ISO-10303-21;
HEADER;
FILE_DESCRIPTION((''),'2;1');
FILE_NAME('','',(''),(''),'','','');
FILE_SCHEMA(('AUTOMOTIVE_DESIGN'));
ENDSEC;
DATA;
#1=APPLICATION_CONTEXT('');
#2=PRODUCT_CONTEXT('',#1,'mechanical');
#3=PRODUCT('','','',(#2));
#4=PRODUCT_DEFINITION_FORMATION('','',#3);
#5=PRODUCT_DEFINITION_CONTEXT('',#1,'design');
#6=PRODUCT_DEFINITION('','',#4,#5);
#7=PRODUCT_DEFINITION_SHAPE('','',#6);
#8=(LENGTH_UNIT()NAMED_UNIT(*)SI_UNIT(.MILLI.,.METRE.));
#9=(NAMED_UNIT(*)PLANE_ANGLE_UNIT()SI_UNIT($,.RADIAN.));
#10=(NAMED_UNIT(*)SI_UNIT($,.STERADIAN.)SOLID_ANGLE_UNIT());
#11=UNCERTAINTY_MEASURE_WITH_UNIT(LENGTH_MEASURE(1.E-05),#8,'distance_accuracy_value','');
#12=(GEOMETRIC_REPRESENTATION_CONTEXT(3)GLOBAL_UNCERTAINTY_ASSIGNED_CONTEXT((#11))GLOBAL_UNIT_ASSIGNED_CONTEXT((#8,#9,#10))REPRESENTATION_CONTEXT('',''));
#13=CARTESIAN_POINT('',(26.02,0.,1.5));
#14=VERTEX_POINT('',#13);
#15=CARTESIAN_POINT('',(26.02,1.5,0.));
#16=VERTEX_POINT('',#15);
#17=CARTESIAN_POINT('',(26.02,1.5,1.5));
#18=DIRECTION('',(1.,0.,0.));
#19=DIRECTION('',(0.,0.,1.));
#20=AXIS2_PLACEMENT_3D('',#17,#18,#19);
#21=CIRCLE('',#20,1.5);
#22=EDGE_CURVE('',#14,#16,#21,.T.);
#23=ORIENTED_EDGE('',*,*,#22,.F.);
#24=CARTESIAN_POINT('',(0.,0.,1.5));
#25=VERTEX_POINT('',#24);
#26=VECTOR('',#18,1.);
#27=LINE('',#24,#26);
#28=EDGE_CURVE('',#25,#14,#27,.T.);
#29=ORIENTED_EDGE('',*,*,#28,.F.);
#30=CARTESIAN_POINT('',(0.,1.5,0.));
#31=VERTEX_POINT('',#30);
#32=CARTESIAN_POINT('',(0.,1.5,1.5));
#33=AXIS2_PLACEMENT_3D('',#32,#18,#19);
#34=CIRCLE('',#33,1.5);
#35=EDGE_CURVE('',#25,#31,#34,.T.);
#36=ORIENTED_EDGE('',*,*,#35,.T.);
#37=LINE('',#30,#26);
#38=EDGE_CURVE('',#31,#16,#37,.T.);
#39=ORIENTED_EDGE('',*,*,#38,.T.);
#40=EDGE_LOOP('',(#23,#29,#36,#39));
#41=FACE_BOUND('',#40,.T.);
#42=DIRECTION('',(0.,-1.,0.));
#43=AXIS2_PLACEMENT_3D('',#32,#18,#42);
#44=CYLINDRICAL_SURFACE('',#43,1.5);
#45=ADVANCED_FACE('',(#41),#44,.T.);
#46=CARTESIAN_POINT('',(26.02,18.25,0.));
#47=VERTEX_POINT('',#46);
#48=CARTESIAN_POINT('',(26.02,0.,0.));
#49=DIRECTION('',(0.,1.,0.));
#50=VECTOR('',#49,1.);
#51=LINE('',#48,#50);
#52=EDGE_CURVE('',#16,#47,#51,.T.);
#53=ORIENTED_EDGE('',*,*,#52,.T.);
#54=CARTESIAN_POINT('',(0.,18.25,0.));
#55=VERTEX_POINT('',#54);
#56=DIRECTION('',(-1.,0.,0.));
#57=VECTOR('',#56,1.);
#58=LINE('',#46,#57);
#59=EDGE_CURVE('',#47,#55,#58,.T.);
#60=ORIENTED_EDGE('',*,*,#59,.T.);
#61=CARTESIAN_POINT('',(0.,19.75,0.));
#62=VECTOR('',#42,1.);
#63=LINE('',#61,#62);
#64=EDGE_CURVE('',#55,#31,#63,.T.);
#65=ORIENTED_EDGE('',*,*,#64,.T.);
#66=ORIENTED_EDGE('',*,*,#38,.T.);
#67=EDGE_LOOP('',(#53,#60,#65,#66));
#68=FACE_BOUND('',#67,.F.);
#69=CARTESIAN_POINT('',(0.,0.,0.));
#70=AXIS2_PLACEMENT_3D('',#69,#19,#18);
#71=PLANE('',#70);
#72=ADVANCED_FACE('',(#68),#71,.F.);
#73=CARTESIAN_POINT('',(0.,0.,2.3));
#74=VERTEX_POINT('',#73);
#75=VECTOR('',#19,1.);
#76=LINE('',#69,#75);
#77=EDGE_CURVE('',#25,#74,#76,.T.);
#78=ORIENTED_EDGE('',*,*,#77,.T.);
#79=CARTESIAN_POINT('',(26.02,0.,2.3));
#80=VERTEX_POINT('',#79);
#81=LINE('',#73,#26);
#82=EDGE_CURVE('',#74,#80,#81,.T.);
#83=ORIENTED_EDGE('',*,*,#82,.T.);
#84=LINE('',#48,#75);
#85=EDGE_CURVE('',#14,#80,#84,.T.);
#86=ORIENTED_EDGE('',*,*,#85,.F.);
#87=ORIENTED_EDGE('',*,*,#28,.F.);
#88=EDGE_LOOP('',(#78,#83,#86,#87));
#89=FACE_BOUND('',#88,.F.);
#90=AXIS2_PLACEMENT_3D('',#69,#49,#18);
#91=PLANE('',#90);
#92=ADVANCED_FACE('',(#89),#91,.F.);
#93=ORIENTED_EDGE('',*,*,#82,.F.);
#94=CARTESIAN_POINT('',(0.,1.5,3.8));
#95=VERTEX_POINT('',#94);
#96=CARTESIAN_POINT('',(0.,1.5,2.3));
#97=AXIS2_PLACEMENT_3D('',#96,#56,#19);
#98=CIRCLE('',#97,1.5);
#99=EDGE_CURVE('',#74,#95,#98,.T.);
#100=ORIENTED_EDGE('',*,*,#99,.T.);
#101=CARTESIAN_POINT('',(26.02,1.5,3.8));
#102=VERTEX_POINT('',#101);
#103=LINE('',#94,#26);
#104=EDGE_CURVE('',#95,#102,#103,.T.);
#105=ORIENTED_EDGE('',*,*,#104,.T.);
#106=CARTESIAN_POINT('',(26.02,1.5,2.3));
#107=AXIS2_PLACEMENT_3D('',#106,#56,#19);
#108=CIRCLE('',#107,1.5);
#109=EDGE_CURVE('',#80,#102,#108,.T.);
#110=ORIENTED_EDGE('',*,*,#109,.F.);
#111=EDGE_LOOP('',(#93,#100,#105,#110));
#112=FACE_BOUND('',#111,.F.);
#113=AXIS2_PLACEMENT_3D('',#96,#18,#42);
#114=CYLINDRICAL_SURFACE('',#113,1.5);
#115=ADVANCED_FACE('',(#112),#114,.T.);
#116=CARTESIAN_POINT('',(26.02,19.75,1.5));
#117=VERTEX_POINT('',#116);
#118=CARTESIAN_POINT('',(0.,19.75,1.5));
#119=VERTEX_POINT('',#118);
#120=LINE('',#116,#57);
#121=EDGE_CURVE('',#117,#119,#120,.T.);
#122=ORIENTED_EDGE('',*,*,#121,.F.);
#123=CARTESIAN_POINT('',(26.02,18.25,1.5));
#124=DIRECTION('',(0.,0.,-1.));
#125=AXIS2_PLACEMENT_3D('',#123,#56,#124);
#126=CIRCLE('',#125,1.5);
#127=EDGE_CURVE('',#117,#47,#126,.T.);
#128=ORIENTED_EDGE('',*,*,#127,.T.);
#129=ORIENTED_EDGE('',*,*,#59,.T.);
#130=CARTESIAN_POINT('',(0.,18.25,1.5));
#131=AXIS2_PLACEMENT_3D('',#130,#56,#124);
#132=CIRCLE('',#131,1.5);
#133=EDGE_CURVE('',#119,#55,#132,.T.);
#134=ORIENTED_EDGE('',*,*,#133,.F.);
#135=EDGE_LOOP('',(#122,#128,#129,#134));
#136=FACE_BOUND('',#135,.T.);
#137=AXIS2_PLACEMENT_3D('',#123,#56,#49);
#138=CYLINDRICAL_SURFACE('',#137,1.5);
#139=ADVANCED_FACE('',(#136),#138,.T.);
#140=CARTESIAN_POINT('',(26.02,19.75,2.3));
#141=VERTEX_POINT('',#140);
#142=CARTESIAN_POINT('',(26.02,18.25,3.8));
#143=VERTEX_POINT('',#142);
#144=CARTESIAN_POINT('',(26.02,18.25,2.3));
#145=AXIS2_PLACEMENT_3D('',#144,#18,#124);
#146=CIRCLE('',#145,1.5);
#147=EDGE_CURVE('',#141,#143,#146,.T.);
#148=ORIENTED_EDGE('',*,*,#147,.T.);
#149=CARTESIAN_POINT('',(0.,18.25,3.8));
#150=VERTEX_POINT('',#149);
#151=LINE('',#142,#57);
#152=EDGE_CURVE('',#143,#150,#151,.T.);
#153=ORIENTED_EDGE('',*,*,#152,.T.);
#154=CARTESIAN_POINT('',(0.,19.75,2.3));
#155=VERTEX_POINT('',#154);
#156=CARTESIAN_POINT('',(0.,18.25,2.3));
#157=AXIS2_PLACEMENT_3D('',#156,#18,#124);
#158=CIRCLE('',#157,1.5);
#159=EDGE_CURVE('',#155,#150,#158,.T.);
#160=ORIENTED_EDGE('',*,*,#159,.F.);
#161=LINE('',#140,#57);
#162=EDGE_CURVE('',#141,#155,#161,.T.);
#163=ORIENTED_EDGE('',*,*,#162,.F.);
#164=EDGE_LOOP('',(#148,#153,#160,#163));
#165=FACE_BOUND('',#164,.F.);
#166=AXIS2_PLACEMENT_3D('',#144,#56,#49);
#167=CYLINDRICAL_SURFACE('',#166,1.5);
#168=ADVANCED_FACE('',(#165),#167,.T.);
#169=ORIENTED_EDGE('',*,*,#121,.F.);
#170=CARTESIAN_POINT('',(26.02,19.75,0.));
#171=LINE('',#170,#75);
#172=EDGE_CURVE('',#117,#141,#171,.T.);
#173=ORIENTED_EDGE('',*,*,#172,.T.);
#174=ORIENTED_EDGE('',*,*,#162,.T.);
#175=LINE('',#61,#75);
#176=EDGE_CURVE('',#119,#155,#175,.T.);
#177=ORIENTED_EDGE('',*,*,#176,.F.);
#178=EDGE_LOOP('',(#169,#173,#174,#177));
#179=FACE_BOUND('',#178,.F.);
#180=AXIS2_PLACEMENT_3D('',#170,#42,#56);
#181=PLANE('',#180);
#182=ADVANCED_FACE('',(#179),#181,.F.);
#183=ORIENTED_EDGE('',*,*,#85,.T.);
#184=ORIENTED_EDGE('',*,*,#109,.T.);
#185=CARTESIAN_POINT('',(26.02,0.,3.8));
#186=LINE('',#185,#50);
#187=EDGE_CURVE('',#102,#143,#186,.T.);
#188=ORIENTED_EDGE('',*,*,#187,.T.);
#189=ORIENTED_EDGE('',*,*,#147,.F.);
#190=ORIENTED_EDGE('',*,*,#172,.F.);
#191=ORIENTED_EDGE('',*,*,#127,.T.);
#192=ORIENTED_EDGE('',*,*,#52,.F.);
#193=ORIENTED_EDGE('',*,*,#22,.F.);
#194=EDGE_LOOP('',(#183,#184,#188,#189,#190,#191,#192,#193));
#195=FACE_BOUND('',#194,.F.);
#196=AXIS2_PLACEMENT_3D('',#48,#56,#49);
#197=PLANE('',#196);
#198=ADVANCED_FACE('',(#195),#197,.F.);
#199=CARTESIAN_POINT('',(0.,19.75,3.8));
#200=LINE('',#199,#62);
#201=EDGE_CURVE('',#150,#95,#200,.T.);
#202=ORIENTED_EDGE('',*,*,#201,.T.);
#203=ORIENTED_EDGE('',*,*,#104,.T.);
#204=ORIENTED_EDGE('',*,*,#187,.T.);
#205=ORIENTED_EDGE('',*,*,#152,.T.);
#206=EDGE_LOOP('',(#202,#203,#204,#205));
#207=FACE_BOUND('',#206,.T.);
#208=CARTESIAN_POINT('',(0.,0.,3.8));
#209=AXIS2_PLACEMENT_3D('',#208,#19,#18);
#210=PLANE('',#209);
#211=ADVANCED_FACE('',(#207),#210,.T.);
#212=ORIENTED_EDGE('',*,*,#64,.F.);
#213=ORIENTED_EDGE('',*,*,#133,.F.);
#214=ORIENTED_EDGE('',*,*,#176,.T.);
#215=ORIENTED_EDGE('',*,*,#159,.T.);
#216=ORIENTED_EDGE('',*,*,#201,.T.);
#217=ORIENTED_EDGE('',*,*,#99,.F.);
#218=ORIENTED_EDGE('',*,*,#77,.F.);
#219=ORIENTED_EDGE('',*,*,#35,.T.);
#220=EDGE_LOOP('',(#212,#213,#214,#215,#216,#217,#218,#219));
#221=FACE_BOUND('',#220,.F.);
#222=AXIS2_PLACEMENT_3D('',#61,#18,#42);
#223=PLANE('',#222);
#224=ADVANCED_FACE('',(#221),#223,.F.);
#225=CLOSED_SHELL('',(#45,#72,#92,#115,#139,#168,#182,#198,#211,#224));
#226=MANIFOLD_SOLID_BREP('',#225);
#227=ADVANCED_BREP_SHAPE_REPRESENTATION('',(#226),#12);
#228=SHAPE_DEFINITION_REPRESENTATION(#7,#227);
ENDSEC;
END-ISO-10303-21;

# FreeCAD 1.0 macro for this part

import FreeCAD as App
import Part
import Sketcher
from FreeCAD import Vector
Q = App.Units.Quantity


def edges_at(feature, points):
    """Names of the edges that pass closest to the given points."""
    edges = feature.Shape.Edges
    near = lambda p: min(range(len(edges)), key=lambda i: edges[i].distToShape(Part.Vertex(*p))[0])
    return sorted({f"Edge{near(p) + 1}" for p in points})

doc = App.newDocument("Part")
params = doc.addObject("Spreadsheet::Sheet", "Params")
for row, (alias, value) in enumerate([
    ("sketch1_width", "26.02 mm"),
    ("sketch1_height", "19.75 mm"),
    ("pad1_length", "3.8 mm"),
    ("fillet_radius", "1.5 mm"),
], start=1):
    params.set(f"A{row}", alias)
    params.set(f"B{row}", "=" + value)
    params.setAlias(f"B{row}", alias)

body = doc.addObject("PartDesign::Body", "Body")

sketch1 = doc.addObject("Sketcher::SketchObject", "Sketch")
body.addObject(sketch1)
sketch1.AttachmentSupport = (doc.XY_Plane, [""])
sketch1.MapMode = "FlatFace"
sketch1.addGeometry(Part.LineSegment(Vector(0, 20, 0), Vector(0, 0, 0)), False)
sketch1.addGeometry(Part.LineSegment(Vector(0, 0, 0), Vector(26, 0, 0)), False)
sketch1.addGeometry(Part.LineSegment(Vector(26, 0, 0), Vector(26, 20, 0)), False)
sketch1.addGeometry(Part.LineSegment(Vector(26, 20, 0), Vector(0, 20, 0)), False)
sketch1.addConstraint(Sketcher.Constraint("Coincident", 0, 2, 1, 1))
sketch1.addConstraint(Sketcher.Constraint("Coincident", 1, 2, 2, 1))
sketch1.addConstraint(Sketcher.Constraint("Coincident", 2, 2, 3, 1))
sketch1.addConstraint(Sketcher.Constraint("Coincident", 3, 2, 0, 1))
sketch1.addConstraint(Sketcher.Constraint("Vertical", 0))
sketch1.addConstraint(Sketcher.Constraint("Horizontal", 1))
sketch1.addConstraint(Sketcher.Constraint("Vertical", 2))
sketch1.addConstraint(Sketcher.Constraint("Horizontal", 3))
sketch1.addConstraint(Sketcher.Constraint("Coincident", 0, 2, -1, 1))
sketch1.addConstraint(Sketcher.Constraint("DistanceX", 1, 1, 1, 2, Q("26.02 mm")))
sketch1.addConstraint(Sketcher.Constraint("DistanceY", 0, 2, 0, 1, Q("19.75 mm")))
sketch1.setExpression("Constraints[9]", "Params.sketch1_width")
sketch1.setExpression("Constraints[10]", "Params.sketch1_height")
pad1 = doc.addObject("PartDesign::Pad", "Pad")
body.addObject(pad1)
pad1.Profile = sketch1
pad1.setExpression("Length", "Params.pad1_length")
doc.recompute()

fillet = doc.addObject("PartDesign::Fillet", "Fillet")
body.addObject(fillet)
fillet.Base = (pad1, edges_at(pad1, [
    (13.01, 0, 3.8),
    (13.01, 0, 0),
    (13.01, 19.75, 3.8),
    (13.01, 19.75, 0),
]))
fillet.setExpression("Radius", "Params.fillet_radius")

doc.recompute()
